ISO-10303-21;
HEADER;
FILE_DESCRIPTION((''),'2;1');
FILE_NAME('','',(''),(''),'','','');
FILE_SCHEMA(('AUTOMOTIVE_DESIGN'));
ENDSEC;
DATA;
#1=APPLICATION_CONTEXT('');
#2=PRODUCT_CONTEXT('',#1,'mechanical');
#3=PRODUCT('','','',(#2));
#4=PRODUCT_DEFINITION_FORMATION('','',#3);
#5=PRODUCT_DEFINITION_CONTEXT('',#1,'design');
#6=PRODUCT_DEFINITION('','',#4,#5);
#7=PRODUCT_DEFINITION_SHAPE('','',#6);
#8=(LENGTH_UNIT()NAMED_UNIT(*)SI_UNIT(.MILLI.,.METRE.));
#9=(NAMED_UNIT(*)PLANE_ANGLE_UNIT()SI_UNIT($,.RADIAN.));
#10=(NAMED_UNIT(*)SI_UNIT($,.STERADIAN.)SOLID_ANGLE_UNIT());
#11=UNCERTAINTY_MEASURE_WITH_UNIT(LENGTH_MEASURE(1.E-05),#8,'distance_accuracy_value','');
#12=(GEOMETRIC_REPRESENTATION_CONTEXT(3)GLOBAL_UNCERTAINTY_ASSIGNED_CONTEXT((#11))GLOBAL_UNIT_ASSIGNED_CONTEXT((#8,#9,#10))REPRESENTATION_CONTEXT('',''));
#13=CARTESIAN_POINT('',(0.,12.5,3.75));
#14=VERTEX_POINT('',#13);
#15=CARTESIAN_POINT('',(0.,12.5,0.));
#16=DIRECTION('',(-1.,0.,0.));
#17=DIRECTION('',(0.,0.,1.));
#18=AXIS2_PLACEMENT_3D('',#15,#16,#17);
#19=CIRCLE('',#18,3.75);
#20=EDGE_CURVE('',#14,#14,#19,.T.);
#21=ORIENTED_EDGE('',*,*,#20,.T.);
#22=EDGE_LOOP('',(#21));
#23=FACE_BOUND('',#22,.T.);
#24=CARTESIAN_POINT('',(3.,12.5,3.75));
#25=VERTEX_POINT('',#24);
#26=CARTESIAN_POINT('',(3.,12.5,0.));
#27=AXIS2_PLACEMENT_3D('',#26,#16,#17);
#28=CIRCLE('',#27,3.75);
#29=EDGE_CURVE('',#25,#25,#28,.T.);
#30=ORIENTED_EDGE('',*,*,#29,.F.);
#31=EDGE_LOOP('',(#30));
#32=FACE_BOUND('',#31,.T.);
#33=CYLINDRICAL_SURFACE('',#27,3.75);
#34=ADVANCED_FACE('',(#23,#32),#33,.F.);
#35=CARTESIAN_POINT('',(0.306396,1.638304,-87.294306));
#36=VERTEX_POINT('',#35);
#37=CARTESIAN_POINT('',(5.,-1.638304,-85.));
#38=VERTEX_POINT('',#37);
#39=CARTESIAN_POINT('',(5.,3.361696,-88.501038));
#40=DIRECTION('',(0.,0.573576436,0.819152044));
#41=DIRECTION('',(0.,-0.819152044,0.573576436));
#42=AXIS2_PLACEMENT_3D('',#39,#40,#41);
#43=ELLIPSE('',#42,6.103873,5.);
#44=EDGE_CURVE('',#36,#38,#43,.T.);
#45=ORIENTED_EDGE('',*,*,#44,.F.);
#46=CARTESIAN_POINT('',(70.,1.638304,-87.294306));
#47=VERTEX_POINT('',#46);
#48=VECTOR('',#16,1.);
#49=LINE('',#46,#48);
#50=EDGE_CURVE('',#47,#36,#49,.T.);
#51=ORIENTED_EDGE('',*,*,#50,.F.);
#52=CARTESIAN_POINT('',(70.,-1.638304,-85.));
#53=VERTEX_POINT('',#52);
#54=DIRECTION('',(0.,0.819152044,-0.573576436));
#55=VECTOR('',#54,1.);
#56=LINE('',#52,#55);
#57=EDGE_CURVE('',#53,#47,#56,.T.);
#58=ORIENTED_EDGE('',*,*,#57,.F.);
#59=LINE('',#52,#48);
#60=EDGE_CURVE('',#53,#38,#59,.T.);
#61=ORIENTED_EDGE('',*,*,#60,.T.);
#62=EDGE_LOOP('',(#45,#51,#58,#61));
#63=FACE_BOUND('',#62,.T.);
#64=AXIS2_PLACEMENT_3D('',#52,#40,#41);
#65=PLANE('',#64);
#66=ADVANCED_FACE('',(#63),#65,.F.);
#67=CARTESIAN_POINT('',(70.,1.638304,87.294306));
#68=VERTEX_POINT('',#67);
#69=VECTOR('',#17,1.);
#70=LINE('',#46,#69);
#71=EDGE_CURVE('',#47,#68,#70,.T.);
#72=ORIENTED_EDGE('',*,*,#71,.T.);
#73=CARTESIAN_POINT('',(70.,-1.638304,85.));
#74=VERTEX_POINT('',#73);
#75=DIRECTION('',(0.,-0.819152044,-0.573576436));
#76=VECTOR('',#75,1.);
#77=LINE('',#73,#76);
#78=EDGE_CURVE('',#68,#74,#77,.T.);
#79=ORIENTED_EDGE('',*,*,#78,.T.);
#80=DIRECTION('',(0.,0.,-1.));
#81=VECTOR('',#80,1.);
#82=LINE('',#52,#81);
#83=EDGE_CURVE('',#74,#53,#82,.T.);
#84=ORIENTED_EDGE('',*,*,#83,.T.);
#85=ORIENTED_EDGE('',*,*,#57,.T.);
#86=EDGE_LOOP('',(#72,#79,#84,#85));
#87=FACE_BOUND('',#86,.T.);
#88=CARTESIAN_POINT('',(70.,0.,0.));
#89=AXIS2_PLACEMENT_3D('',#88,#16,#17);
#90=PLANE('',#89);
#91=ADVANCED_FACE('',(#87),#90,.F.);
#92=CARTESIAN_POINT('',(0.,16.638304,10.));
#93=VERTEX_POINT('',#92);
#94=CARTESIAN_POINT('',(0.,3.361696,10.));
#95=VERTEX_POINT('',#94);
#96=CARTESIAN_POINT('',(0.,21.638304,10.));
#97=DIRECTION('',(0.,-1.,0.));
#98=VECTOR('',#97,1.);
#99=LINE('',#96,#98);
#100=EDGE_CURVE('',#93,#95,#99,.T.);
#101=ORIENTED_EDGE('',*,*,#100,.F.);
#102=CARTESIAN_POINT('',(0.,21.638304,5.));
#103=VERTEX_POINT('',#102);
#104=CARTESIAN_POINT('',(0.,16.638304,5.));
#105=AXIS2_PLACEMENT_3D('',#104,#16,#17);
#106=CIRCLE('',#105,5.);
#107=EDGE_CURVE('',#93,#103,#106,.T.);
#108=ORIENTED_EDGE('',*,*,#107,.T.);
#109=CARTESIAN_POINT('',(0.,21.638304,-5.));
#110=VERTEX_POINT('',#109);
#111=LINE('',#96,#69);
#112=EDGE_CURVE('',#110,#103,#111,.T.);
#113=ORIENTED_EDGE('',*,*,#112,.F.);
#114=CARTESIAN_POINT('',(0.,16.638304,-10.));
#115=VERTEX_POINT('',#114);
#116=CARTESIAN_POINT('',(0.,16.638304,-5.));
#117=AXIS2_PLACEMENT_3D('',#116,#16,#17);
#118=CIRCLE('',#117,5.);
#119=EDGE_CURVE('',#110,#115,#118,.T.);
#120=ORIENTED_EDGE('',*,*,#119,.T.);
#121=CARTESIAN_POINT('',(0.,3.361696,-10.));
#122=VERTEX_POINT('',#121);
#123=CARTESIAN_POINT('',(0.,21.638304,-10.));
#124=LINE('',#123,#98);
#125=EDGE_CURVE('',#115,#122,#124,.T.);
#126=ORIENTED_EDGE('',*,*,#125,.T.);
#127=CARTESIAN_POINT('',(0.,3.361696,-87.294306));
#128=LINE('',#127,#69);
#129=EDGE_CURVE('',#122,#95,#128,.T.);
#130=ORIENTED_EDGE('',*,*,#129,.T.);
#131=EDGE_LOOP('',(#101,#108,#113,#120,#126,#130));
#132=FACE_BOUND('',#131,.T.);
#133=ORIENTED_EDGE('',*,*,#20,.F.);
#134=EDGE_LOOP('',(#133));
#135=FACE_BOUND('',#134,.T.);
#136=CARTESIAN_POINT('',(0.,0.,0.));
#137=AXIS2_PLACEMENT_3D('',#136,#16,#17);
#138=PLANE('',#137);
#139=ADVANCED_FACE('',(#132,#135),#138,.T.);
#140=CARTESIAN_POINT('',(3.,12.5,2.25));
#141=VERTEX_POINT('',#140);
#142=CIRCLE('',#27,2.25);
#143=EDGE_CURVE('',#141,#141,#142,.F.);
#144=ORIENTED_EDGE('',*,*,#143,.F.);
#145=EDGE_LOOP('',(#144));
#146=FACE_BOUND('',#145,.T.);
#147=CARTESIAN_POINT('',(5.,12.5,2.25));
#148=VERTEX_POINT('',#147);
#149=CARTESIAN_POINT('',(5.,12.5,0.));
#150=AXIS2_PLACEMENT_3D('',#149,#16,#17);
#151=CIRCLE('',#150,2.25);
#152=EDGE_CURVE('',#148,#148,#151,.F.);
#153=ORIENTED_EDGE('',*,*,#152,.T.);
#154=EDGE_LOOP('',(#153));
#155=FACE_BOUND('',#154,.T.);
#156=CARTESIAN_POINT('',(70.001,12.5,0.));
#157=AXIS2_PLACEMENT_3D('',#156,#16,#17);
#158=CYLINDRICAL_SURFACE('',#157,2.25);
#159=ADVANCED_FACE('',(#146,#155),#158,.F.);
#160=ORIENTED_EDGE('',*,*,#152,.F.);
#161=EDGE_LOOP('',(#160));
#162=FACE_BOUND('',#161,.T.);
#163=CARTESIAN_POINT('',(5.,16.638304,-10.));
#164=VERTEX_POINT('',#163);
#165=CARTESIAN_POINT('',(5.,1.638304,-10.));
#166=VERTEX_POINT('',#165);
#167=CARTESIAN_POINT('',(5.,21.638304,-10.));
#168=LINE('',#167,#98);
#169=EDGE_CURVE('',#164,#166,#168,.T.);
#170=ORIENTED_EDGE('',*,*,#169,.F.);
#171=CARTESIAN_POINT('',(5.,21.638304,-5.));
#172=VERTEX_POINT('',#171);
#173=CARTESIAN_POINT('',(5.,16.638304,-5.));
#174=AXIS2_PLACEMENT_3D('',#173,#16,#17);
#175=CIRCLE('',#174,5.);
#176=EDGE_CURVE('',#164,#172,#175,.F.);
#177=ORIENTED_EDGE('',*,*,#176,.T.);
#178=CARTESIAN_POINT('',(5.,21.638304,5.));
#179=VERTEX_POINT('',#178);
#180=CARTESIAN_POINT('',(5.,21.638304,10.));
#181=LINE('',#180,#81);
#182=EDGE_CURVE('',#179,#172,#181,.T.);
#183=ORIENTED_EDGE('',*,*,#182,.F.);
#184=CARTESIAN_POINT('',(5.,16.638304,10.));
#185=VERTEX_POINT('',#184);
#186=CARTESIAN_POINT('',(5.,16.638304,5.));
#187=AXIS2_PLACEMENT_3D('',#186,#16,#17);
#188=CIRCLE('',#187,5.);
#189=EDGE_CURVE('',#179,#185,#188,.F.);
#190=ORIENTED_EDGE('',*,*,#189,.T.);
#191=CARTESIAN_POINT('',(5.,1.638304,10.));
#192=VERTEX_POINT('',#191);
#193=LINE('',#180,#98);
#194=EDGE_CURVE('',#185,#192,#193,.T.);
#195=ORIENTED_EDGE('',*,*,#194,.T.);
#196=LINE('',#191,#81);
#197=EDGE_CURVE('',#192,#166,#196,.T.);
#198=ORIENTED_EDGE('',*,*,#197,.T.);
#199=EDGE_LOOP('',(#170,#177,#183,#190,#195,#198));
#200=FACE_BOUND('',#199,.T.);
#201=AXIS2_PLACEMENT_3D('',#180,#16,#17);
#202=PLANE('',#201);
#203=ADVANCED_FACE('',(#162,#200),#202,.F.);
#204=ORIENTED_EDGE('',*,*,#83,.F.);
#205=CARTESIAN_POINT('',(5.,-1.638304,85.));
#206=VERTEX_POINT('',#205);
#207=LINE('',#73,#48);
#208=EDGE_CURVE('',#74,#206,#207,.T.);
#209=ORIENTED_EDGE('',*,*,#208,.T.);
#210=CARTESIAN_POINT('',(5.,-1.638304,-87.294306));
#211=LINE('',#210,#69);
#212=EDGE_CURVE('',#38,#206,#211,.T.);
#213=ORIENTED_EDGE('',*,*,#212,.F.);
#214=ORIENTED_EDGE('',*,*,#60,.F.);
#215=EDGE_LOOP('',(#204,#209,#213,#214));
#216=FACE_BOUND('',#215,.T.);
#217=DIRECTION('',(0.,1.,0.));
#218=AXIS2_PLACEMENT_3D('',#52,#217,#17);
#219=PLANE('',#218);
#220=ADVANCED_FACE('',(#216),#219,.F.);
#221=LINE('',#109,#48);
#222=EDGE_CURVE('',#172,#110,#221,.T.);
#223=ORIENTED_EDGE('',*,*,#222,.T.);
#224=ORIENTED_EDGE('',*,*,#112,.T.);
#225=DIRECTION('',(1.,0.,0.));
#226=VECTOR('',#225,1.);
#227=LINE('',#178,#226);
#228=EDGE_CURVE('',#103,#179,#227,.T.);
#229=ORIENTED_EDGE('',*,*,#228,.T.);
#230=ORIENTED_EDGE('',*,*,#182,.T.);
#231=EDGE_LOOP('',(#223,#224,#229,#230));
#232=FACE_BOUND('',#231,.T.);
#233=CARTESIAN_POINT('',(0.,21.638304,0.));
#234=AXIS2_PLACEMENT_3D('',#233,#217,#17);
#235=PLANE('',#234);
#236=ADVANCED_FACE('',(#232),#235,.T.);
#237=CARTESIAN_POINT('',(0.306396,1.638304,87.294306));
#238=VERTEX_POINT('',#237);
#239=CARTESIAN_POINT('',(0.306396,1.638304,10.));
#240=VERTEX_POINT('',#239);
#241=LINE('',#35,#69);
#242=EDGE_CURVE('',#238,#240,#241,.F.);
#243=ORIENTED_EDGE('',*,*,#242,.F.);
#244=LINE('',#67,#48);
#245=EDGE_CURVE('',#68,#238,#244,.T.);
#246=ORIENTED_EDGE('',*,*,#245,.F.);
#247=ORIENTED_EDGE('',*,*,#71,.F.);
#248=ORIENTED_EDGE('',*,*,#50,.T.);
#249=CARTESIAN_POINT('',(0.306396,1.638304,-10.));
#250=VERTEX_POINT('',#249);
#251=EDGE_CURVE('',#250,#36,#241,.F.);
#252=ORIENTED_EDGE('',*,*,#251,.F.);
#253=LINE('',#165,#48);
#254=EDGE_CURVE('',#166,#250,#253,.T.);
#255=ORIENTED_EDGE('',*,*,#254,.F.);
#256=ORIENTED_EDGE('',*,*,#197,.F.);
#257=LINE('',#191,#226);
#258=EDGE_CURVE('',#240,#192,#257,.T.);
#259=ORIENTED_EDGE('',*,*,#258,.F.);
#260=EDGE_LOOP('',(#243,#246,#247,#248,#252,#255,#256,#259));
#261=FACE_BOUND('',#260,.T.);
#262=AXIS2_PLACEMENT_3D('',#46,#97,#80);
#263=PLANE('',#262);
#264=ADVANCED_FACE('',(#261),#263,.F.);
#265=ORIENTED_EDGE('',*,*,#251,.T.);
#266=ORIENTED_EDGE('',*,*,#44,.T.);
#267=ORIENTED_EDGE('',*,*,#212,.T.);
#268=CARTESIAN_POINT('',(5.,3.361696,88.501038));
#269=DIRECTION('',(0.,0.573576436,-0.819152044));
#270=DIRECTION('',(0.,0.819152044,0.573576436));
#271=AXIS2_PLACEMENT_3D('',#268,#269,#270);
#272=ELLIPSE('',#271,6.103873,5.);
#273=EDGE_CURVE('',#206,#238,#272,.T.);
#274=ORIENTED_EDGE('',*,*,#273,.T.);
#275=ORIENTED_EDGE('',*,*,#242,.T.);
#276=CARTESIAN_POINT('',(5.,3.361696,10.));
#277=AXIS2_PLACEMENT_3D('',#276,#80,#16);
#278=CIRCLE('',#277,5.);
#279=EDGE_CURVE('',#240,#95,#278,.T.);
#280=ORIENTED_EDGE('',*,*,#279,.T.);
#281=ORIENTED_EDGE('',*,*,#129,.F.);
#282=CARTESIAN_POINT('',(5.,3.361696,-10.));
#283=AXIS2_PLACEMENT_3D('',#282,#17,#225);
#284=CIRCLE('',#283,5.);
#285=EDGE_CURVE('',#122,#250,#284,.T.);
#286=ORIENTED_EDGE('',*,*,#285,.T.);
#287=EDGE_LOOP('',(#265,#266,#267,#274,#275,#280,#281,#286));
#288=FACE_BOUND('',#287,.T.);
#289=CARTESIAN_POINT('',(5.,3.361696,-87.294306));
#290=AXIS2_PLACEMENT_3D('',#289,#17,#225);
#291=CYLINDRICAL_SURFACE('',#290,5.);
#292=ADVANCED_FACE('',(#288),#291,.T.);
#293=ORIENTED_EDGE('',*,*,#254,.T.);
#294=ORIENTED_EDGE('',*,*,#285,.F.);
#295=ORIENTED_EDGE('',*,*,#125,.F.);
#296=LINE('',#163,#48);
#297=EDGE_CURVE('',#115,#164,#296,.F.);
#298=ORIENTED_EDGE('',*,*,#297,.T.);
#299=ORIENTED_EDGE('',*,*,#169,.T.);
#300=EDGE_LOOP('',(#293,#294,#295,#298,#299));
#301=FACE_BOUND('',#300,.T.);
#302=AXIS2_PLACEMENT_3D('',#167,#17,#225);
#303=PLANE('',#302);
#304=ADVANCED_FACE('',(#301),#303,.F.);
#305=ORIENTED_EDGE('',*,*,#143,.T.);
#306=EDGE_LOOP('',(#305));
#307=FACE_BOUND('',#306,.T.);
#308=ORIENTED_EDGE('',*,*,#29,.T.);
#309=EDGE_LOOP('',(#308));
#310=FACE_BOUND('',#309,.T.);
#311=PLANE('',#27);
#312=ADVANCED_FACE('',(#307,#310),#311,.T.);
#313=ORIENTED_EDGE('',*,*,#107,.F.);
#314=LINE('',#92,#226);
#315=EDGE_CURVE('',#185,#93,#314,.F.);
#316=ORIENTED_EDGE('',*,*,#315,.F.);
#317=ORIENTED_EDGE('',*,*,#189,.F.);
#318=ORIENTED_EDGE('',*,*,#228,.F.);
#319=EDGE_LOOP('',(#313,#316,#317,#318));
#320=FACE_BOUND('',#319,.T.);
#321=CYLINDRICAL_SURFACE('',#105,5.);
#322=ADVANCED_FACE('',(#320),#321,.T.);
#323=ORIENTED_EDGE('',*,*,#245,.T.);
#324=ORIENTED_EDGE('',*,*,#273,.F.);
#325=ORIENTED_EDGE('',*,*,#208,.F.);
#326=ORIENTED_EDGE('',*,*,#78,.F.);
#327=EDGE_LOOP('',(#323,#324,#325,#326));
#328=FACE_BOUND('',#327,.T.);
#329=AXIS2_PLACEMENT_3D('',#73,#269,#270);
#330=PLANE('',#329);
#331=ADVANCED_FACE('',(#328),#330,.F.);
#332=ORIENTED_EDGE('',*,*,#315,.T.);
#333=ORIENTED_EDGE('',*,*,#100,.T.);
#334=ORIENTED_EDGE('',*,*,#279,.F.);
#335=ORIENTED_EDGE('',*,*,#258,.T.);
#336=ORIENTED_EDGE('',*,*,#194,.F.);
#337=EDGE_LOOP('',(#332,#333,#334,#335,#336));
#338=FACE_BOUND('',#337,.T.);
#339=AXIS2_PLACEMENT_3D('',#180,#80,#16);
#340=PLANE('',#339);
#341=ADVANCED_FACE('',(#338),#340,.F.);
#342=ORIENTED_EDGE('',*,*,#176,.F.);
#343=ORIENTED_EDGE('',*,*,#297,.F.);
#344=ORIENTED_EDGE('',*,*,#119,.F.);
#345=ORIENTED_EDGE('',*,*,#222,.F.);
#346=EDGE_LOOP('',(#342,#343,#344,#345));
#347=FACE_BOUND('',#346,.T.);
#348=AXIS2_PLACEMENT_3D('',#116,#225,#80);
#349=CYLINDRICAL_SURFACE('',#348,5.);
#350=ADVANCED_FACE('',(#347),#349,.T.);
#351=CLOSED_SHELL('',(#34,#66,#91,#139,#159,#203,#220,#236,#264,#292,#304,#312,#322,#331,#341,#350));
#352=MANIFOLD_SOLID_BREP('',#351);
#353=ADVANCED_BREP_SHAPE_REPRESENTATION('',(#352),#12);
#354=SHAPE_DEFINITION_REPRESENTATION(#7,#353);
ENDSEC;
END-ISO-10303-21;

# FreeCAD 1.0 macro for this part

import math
import FreeCAD as App
import Part
import Sketcher

V = App.Vector
Q = App.Units.Quantity


def edges_at(feature, points):
    """Names of the edges that pass closest to the given points."""
    edges = feature.Shape.Edges
    near = lambda p: min(range(len(edges)), key=lambda i: edges[i].distToShape(Part.Vertex(*p))[0])
    return sorted({f"Edge{near(p) + 1}" for p in points})

doc = App.newDocument("Part")
body = doc.addObject("PartDesign::Body", "Body")

sketch1 = body.newObject("Sketcher::SketchObject", "Sketch")
sketch1.AttachmentSupport = (doc.getObject("YZ_Plane"), [""])
sketch1.MapMode = "FlatFace"
sketch1.addGeometry([
    Part.LineSegment(V(1.638304, 87.294306, 0), V(-1.638304, 85, 0)),
    Part.LineSegment(V(-1.638304, 85, 0), V(-1.638304, -85, 0)),
    Part.LineSegment(V(-1.638304, -85, 0), V(1.638304, -87.294306, 0)),
    Part.LineSegment(V(1.638304, -87.294306, 0), V(1.638304, 87.294306, 0)),
], False)
sketch1.addConstraint([
    Sketcher.Constraint("Coincident", 0, 2, 1, 1),
    Sketcher.Constraint("Coincident", 1, 2, 2, 1),
    Sketcher.Constraint("Coincident", 2, 2, 3, 1),
    Sketcher.Constraint("Coincident", 3, 2, 0, 1),
    Sketcher.Constraint("Vertical", 1),
    Sketcher.Constraint("Vertical", 3),
    Sketcher.Constraint("Equal", 0, 2),
    Sketcher.Constraint("DistanceY", 1, 2, 1, 1, Q("170 mm")),
    Sketcher.Constraint("Angle", 0, Q("-145 deg")),
    Sketcher.Constraint("Distance", 0, Q("4 mm")),
    Sketcher.Constraint("DistanceY", -1, 1, 0, 2, Q("85 mm")),
    Sketcher.Constraint("DistanceX", 0, 2, -1, 1, Q("1.638304 mm")),
])
pad1 = body.newObject("PartDesign::Pad", "Pad")
pad1.Profile = sketch1
pad1.Length = 70

sketch2 = body.newObject("Sketcher::SketchObject", "Sketch001")
sketch2.AttachmentSupport = (doc.getObject("XZ_Plane"), [""])
sketch2.MapMode = "FlatFace"
sketch2.AttachmentOffset = App.Placement(V(0, 0, -1.638304), App.Rotation())
sketch2.addGeometry([
    Part.LineSegment(V(5, 10, 0), V(5, -10, 0)),
    Part.LineSegment(V(5, -10, 0), V(0, -10, 0)),
    Part.LineSegment(V(0, -10, 0), V(0, 10, 0)),
    Part.LineSegment(V(0, 10, 0), V(5, 10, 0)),
], False)
sketch2.addConstraint([
    Sketcher.Constraint("Coincident", 0, 2, 1, 1),
    Sketcher.Constraint("Coincident", 1, 2, 2, 1),
    Sketcher.Constraint("Coincident", 2, 2, 3, 1),
    Sketcher.Constraint("Coincident", 3, 2, 0, 1),
    Sketcher.Constraint("Vertical", 0),
    Sketcher.Constraint("Horizontal", 1),
    Sketcher.Constraint("Vertical", 2),
    Sketcher.Constraint("Horizontal", 3),
    Sketcher.Constraint("Symmetric", 1, 2, 2, 2, -1, 1),
    Sketcher.Constraint("DistanceX", 1, 2, 1, 1, Q("5 mm")),
    Sketcher.Constraint("DistanceY", 0, 2, 0, 1, Q("20 mm")),
])
pad2 = body.newObject("PartDesign::Pad", "Pad001")
pad2.Profile = sketch2
pad2.Length = 20
pad2.Reversed = True

sketch3 = body.newObject("Sketcher::SketchObject", "Sketch002")
sketch3.AttachmentSupport = (doc.getObject("XY_Plane"), [""])
sketch3.MapMode = "FlatFace"
sketch3.addGeometry([
    Part.ArcOfCircle(Part.Circle(V(5, 3.361696, 0), V(0, 0, 1), 5), math.radians(180), math.radians(270)),
    Part.LineSegment(V(0, 3.361696, 0), V(0, -1.638304, 0)),
    Part.LineSegment(V(0, -1.638304, 0), V(5, -1.638304, 0)),
], False)
sketch3.addConstraint([
    Sketcher.Constraint("Tangent", 0, 1, 1, 1),
    Sketcher.Constraint("Coincident", 1, 2, 2, 1),
    Sketcher.Constraint("Tangent", 2, 2, 0, 2),
    Sketcher.Constraint("Vertical", 1),
    Sketcher.Constraint("Horizontal", 2),
    Sketcher.Constraint("PointOnObject", 0, 1, -2),
    Sketcher.Constraint("Radius", 0, Q("5 mm")),
    Sketcher.Constraint("DistanceY", -1, 1, 0, 3, Q("3.361696 mm")),
])
pocket1 = body.newObject("PartDesign::Pocket", "Pocket")
pocket1.Profile = sketch3
pocket1.Type = "ThroughAll"
pocket1.Midplane = True

sketch4 = body.newObject("Sketcher::SketchObject", "Sketch003")
sketch4.AttachmentSupport = (doc.getObject("YZ_Plane"), [""])
sketch4.MapMode = "FlatFace"
sketch4.addGeometry(Part.Circle(V(12.5, 0, 0), V(0, 0, 1), 2.25), False)
sketch4.addConstraint([
    Sketcher.Constraint("PointOnObject", 0, 3, -1),
    Sketcher.Constraint("Diameter", 0, Q("4.5 mm")),
    Sketcher.Constraint("DistanceX", -1, 1, 0, 3, Q("12.5 mm")),
])
pocket2 = body.newObject("PartDesign::Pocket", "Pocket001")
pocket2.Profile = sketch4
pocket2.Type = "UpToFirst"
pocket2.Reversed = True

sketch5 = body.newObject("Sketcher::SketchObject", "Sketch004")
sketch5.AttachmentSupport = (doc.getObject("YZ_Plane"), [""])
sketch5.MapMode = "FlatFace"
sketch5.addGeometry(Part.Circle(V(12.5, 0, 0), V(0, 0, 1), 3.75), False)
sketch5.addConstraint([
    Sketcher.Constraint("PointOnObject", 0, 3, -1),
    Sketcher.Constraint("Diameter", 0, Q("7.5 mm")),
    Sketcher.Constraint("DistanceX", -1, 1, 0, 3, Q("12.5 mm")),
])
pocket3 = body.newObject("PartDesign::Pocket", "Pocket002")
pocket3.Profile = sketch5
pocket3.Length = 3
pocket3.Reversed = True
doc.recompute()

fillet = body.newObject("PartDesign::Fillet", "Fillet")
fillet.Base = (pocket3, edges_at(pocket3, [(2.5, 21.638, -10), (2.5, 21.638, 10)]))
fillet.Radius = 5

doc.recompute()
